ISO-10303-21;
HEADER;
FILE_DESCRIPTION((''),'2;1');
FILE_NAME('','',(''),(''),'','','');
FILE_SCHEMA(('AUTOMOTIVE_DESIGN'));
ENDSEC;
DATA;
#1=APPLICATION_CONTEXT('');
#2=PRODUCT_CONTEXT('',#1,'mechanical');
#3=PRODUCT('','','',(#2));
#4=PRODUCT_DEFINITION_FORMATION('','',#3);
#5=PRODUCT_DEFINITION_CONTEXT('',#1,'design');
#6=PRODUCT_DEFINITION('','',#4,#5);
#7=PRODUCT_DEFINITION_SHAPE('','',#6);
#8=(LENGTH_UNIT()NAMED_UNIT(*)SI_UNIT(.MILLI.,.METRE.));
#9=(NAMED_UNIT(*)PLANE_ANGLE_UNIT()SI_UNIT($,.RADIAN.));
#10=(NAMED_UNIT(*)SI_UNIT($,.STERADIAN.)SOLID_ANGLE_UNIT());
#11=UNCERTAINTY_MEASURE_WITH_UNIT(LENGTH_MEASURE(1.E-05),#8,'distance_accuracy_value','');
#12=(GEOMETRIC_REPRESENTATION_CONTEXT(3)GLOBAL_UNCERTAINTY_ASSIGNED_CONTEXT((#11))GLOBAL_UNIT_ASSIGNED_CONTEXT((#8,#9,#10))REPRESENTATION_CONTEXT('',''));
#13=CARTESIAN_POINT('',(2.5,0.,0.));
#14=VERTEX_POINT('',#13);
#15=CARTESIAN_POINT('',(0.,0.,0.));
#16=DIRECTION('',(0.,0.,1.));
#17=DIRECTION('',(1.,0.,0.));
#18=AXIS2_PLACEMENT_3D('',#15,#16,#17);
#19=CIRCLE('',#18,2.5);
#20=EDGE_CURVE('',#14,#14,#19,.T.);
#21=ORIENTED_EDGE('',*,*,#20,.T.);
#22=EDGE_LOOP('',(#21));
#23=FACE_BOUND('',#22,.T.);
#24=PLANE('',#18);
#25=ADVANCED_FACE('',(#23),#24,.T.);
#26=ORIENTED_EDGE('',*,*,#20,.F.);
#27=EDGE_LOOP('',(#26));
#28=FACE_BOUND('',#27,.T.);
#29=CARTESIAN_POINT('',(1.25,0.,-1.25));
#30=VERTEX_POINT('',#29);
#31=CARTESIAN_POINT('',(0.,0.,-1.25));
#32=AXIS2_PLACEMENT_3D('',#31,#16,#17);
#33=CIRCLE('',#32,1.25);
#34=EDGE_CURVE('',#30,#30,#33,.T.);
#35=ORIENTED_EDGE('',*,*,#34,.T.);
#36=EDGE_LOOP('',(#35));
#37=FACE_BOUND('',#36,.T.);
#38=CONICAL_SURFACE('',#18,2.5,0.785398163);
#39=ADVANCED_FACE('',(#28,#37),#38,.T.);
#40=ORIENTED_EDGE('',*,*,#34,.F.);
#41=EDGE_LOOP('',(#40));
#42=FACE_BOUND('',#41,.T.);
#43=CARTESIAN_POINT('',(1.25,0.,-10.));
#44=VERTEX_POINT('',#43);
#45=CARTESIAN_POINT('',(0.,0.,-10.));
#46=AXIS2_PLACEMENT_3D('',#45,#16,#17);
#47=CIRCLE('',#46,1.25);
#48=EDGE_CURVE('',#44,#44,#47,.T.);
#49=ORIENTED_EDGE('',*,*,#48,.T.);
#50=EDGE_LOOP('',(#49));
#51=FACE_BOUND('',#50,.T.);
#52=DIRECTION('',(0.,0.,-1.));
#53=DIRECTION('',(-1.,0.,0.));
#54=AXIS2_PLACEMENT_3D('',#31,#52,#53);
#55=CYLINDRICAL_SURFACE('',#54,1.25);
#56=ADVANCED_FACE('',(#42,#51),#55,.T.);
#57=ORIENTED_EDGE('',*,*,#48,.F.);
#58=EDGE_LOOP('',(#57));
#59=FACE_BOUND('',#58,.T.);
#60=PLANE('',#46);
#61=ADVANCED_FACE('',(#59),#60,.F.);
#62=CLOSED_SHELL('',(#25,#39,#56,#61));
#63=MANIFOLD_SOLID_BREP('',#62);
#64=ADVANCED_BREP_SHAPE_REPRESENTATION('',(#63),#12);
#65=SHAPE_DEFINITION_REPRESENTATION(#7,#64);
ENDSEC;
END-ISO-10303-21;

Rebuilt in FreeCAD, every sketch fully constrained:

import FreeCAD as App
import Part
import Sketcher
Q = App.Units.Quantity


def faces_at(feature, points):
    """Names of the faces that lie closest to the given points."""
    faces = feature.Shape.Faces
    near = lambda p: min(range(len(faces)), key=lambda i: faces[i].distToShape(Part.Vertex(*p))[0])
    return sorted({f"Face{near(p) + 1}" for p in points})

doc = App.newDocument("Part")
body = doc.addObject("PartDesign::Body", "Body")

sketch1 = body.newObject("Sketcher::SketchObject", "Sketch")
sketch1.AttachmentSupport = (doc.getObject("XY_Plane"), [""])
sketch1.MapMode = "FlatFace"
sketch1.addGeometry(Part.Circle(App.Vector(0, 0, 0), App.Vector(0, 0, 1), 2.5), False)
sketch1.addConstraint([
    Sketcher.Constraint("Coincident", 0, 3, -1, 1),
    Sketcher.Constraint("Diameter", 0, Q("5 mm")),
])
pad1 = body.newObject("PartDesign::Pad", "Pad")
pad1.Profile = sketch1
pad1.Length = 1.25
pad1.Reversed = True
doc.recompute()

draft = body.newObject("PartDesign::Draft", "Draft")
draft.Base = (pad1, faces_at(pad1, [(-2.5, 0, -0.625)]))
draft.NeutralPlane = (doc.getObject("XY_Plane"), [""])
draft.Angle = 45
draft.Reversed = True

sketch2 = body.newObject("Sketcher::SketchObject", "Sketch001")
sketch2.AttachmentSupport = (doc.getObject("XY_Plane"), [""])
sketch2.MapMode = "FlatFace"
sketch2.AttachmentOffset = App.Placement(App.Vector(0, 0, -10), App.Rotation())
sketch2.addGeometry(Part.Circle(App.Vector(0, 0, 0), App.Vector(0, 0, 1), 1.2), False)
sketch2.addConstraint([
    Sketcher.Constraint("Coincident", 0, 3, -1, 1),
    Sketcher.Constraint("Diameter", 0, Q("2.5 mm")),
])
pad2 = body.newObject("PartDesign::Pad", "Pad001")
pad2.Profile = sketch2
pad2.Length = 8.75

doc.recompute()
